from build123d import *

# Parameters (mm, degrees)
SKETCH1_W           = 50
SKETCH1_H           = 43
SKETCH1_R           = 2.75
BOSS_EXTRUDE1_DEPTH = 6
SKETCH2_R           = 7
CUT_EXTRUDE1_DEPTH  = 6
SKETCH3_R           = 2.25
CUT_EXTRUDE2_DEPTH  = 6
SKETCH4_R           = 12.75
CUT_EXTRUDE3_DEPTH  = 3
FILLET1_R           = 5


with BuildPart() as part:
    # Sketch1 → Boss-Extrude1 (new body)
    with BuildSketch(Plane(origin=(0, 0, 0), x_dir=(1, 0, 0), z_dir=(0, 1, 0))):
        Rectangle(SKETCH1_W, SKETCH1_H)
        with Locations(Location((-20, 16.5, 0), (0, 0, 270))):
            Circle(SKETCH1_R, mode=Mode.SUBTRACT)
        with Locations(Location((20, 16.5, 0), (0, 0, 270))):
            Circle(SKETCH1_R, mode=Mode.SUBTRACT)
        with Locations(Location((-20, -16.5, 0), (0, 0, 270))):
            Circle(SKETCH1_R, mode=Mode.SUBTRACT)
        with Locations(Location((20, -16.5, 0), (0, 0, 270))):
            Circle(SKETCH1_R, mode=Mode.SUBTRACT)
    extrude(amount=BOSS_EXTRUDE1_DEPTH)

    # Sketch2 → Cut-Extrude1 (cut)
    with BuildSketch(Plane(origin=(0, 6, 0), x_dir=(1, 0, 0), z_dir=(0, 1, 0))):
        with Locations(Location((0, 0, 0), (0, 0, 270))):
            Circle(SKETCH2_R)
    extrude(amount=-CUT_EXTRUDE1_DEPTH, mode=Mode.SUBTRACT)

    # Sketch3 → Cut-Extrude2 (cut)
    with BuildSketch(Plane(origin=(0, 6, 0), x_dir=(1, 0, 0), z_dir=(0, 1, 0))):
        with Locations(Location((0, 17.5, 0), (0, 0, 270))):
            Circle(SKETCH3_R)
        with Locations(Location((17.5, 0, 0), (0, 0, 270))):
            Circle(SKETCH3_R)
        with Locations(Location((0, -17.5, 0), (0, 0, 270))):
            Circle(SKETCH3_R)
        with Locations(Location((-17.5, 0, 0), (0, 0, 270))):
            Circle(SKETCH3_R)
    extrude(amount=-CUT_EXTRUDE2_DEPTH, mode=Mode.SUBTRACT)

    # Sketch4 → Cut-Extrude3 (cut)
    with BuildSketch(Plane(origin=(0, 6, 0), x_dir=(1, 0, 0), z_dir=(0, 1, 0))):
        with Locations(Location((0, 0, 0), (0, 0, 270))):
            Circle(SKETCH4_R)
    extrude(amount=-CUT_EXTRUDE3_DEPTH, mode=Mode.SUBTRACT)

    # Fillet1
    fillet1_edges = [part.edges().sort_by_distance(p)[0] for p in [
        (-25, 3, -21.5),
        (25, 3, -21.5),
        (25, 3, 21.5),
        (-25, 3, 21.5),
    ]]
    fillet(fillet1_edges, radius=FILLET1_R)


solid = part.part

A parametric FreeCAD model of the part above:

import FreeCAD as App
import Part
import Sketcher
from FreeCAD import Vector
Q = App.Units.Quantity


def edges_at(feature, points):
    """Names of the edges that pass closest to the given points."""
    edges = feature.Shape.Edges
    near = lambda p: min(range(len(edges)), key=lambda i: edges[i].distToShape(Part.Vertex(*p))[0])
    return sorted({f"Edge{near(p) + 1}" for p in points})


def add_polygon(sketch, points):
    """Adds a closed chain of lines whose ends are joined by coincident constraints."""
    first, n = sketch.GeometryCount, len(points)
    for a, b in zip(points, points[1:] + points[:1]):
        sketch.addGeometry(Part.LineSegment(App.Vector(*a, 0), App.Vector(*b, 0)), False)
    for i in range(n):
        sketch.addConstraint(Sketcher.Constraint("Coincident", first + i, 2, first + (i + 1) % n, 1))

doc = App.newDocument("Part")
body = doc.addObject("PartDesign::Body", "Body")

# Sketch on XZ plane
sketch1 = body.newObject("Sketcher::SketchObject", "Sketch")
sketch1.AttachmentSupport = (doc.getObject("XZ_Plane"), [""])
sketch1.MapMode = "FlatFace"
add_polygon(sketch1, [(-25, -21.5), (-25, 21.5), (25, 21.5), (25, -21.5)])  # lines 0-3
sketch1.addGeometry(Part.Circle(Vector(-20, 16.5, 0), Vector(0, 0, 1), 2.8), False)  # 4
sketch1.addGeometry(Part.Circle(Vector(20, 16.5, 0), Vector(0, 0, 1), 2.8), False)  # 5
sketch1.addGeometry(Part.Circle(Vector(-20, -16.5, 0), Vector(0, 0, 1), 2.8), False)  # 6
sketch1.addGeometry(Part.Circle(Vector(20, -16.5, 0), Vector(0, 0, 1), 2.8), False)  # 7
sketch1.addConstraint(Sketcher.Constraint("Vertical", 0))
sketch1.addConstraint(Sketcher.Constraint("Horizontal", 1))
sketch1.addConstraint(Sketcher.Constraint("Vertical", 2))
sketch1.addConstraint(Sketcher.Constraint("Horizontal", 3))
sketch1.addConstraint(Sketcher.Constraint("Equal", 4, 5))
sketch1.addConstraint(Sketcher.Constraint("Equal", 5, 6))
sketch1.addConstraint(Sketcher.Constraint("Equal", 6, 7))
sketch1.addConstraint(Sketcher.Constraint("Symmetric", 5, 3, 6, 3, -1, 1))
sketch1.addConstraint(Sketcher.Constraint("Symmetric", 4, 3, 7, 3, -1, 1))
sketch1.addConstraint(Sketcher.Constraint("Symmetric", 0, 2, 2, 2, -1, 1))
sketch1.addConstraint(Sketcher.Constraint("Symmetric", 4, 3, 5, 3, -2))
sketch1.addConstraint(Sketcher.Constraint("Diameter", 4, Q("5.5 mm")))
sketch1.addConstraint(Sketcher.Constraint("DistanceX", 1, 1, 1, 2, Q("50 mm")))
sketch1.addConstraint(Sketcher.Constraint("DistanceY", 0, 1, 0, 2, Q("43 mm")))
sketch1.addConstraint(Sketcher.Constraint("DistanceX", 4, 3, -1, 1, Q("20 mm")))
sketch1.addConstraint(Sketcher.Constraint("DistanceY", 6, 3, 4, 3, Q("33 mm")))
pad1 = body.newObject("PartDesign::Pad", "Pad")
pad1.Profile = sketch1
pad1.Length = 6
pad1.Reversed = True

# Sketch on XZ plane
sketch2 = body.newObject("Sketcher::SketchObject", "Sketch001")
sketch2.AttachmentSupport = (doc.getObject("XZ_Plane"), [""])
sketch2.MapMode = "FlatFace"
sketch2.AttachmentOffset = App.Placement(Vector(0, 0, -6), App.Rotation())
sketch2.addGeometry(Part.Circle(Vector(0, 0, 0), Vector(0, 0, 1), 7), False)
sketch2.addConstraint(Sketcher.Constraint("Coincident", 0, 3, -1, 1))
sketch2.addConstraint(Sketcher.Constraint("Diameter", 0, Q("14 mm")))
pocket1 = body.newObject("PartDesign::Pocket", "Pocket")
pocket1.Profile = sketch2
pocket1.Length = 6
pocket1.Reversed = True

# Sketch on XZ plane
sketch3 = body.newObject("Sketcher::SketchObject", "Sketch002")
sketch3.AttachmentSupport = (doc.getObject("XZ_Plane"), [""])
sketch3.MapMode = "FlatFace"
sketch3.AttachmentOffset = App.Placement(Vector(0, 0, -6), App.Rotation())
sketch3.addGeometry(Part.Circle(Vector(0, -17.5, 0), Vector(0, 0, 1), 2.2), False)
sketch3.addGeometry(Part.Circle(Vector(17.5, 0, 0), Vector(0, 0, 1), 2.2), False)
sketch3.addGeometry(Part.Circle(Vector(0, 17.5, 0), Vector(0, 0, 1), 2.2), False)
sketch3.addGeometry(Part.Circle(Vector(-17.5, 0, 0), Vector(0, 0, 1), 2.2), False)
sketch3.addConstraint(Sketcher.Constraint("Equal", 0, 1))
sketch3.addConstraint(Sketcher.Constraint("Equal", 1, 2))
sketch3.addConstraint(Sketcher.Constraint("Equal", 2, 3))
sketch3.addConstraint(Sketcher.Constraint("Symmetric", 0, 3, 2, 3, -1, 1))
sketch3.addConstraint(Sketcher.Constraint("Symmetric", 1, 3, 3, 3, -1, 1))
sketch3.addConstraint(Sketcher.Constraint("PointOnObject", 0, 3, -2))
sketch3.addConstraint(Sketcher.Constraint("PointOnObject", 1, 3, -1))
sketch3.addConstraint(Sketcher.Constraint("Diameter", 0, Q("4.5 mm")))
sketch3.addConstraint(Sketcher.Constraint("DistanceY", 0, 3, 2, 3, Q("35 mm")))
sketch3.addConstraint(Sketcher.Constraint("DistanceX", 3, 3, 1, 3, Q("35 mm")))
pocket2 = body.newObject("PartDesign::Pocket", "Pocket001")
pocket2.Profile = sketch3
pocket2.Length = 6
pocket2.Reversed = True

# Sketch on XZ plane
sketch4 = body.newObject("Sketcher::SketchObject", "Sketch003")
sketch4.AttachmentSupport = (doc.getObject("XZ_Plane"), [""])
sketch4.MapMode = "FlatFace"
sketch4.AttachmentOffset = App.Placement(Vector(0, 0, -6), App.Rotation())
sketch4.addGeometry(Part.Circle(Vector(0, 0, 0), Vector(0, 0, 1), 13), False)
sketch4.addConstraint(Sketcher.Constraint("Coincident", 0, 3, -1, 1))
sketch4.addConstraint(Sketcher.Constraint("Diameter", 0, Q("25.5 mm")))
pocket3 = body.newObject("PartDesign::Pocket", "Pocket002")
pocket3.Profile = sketch4
pocket3.Length = 3
pocket3.Reversed = True
doc.recompute()

fillet = body.newObject("PartDesign::Fillet", "Fillet")
fillet.Base = (pocket3, edges_at(pocket3, [
    (-25, 3, -21.5),
    (25, 3, -21.5),
    (25, 3, 21.5),
    (-25, 3, 21.5),
]))
fillet.Radius = 5

doc.recompute()
